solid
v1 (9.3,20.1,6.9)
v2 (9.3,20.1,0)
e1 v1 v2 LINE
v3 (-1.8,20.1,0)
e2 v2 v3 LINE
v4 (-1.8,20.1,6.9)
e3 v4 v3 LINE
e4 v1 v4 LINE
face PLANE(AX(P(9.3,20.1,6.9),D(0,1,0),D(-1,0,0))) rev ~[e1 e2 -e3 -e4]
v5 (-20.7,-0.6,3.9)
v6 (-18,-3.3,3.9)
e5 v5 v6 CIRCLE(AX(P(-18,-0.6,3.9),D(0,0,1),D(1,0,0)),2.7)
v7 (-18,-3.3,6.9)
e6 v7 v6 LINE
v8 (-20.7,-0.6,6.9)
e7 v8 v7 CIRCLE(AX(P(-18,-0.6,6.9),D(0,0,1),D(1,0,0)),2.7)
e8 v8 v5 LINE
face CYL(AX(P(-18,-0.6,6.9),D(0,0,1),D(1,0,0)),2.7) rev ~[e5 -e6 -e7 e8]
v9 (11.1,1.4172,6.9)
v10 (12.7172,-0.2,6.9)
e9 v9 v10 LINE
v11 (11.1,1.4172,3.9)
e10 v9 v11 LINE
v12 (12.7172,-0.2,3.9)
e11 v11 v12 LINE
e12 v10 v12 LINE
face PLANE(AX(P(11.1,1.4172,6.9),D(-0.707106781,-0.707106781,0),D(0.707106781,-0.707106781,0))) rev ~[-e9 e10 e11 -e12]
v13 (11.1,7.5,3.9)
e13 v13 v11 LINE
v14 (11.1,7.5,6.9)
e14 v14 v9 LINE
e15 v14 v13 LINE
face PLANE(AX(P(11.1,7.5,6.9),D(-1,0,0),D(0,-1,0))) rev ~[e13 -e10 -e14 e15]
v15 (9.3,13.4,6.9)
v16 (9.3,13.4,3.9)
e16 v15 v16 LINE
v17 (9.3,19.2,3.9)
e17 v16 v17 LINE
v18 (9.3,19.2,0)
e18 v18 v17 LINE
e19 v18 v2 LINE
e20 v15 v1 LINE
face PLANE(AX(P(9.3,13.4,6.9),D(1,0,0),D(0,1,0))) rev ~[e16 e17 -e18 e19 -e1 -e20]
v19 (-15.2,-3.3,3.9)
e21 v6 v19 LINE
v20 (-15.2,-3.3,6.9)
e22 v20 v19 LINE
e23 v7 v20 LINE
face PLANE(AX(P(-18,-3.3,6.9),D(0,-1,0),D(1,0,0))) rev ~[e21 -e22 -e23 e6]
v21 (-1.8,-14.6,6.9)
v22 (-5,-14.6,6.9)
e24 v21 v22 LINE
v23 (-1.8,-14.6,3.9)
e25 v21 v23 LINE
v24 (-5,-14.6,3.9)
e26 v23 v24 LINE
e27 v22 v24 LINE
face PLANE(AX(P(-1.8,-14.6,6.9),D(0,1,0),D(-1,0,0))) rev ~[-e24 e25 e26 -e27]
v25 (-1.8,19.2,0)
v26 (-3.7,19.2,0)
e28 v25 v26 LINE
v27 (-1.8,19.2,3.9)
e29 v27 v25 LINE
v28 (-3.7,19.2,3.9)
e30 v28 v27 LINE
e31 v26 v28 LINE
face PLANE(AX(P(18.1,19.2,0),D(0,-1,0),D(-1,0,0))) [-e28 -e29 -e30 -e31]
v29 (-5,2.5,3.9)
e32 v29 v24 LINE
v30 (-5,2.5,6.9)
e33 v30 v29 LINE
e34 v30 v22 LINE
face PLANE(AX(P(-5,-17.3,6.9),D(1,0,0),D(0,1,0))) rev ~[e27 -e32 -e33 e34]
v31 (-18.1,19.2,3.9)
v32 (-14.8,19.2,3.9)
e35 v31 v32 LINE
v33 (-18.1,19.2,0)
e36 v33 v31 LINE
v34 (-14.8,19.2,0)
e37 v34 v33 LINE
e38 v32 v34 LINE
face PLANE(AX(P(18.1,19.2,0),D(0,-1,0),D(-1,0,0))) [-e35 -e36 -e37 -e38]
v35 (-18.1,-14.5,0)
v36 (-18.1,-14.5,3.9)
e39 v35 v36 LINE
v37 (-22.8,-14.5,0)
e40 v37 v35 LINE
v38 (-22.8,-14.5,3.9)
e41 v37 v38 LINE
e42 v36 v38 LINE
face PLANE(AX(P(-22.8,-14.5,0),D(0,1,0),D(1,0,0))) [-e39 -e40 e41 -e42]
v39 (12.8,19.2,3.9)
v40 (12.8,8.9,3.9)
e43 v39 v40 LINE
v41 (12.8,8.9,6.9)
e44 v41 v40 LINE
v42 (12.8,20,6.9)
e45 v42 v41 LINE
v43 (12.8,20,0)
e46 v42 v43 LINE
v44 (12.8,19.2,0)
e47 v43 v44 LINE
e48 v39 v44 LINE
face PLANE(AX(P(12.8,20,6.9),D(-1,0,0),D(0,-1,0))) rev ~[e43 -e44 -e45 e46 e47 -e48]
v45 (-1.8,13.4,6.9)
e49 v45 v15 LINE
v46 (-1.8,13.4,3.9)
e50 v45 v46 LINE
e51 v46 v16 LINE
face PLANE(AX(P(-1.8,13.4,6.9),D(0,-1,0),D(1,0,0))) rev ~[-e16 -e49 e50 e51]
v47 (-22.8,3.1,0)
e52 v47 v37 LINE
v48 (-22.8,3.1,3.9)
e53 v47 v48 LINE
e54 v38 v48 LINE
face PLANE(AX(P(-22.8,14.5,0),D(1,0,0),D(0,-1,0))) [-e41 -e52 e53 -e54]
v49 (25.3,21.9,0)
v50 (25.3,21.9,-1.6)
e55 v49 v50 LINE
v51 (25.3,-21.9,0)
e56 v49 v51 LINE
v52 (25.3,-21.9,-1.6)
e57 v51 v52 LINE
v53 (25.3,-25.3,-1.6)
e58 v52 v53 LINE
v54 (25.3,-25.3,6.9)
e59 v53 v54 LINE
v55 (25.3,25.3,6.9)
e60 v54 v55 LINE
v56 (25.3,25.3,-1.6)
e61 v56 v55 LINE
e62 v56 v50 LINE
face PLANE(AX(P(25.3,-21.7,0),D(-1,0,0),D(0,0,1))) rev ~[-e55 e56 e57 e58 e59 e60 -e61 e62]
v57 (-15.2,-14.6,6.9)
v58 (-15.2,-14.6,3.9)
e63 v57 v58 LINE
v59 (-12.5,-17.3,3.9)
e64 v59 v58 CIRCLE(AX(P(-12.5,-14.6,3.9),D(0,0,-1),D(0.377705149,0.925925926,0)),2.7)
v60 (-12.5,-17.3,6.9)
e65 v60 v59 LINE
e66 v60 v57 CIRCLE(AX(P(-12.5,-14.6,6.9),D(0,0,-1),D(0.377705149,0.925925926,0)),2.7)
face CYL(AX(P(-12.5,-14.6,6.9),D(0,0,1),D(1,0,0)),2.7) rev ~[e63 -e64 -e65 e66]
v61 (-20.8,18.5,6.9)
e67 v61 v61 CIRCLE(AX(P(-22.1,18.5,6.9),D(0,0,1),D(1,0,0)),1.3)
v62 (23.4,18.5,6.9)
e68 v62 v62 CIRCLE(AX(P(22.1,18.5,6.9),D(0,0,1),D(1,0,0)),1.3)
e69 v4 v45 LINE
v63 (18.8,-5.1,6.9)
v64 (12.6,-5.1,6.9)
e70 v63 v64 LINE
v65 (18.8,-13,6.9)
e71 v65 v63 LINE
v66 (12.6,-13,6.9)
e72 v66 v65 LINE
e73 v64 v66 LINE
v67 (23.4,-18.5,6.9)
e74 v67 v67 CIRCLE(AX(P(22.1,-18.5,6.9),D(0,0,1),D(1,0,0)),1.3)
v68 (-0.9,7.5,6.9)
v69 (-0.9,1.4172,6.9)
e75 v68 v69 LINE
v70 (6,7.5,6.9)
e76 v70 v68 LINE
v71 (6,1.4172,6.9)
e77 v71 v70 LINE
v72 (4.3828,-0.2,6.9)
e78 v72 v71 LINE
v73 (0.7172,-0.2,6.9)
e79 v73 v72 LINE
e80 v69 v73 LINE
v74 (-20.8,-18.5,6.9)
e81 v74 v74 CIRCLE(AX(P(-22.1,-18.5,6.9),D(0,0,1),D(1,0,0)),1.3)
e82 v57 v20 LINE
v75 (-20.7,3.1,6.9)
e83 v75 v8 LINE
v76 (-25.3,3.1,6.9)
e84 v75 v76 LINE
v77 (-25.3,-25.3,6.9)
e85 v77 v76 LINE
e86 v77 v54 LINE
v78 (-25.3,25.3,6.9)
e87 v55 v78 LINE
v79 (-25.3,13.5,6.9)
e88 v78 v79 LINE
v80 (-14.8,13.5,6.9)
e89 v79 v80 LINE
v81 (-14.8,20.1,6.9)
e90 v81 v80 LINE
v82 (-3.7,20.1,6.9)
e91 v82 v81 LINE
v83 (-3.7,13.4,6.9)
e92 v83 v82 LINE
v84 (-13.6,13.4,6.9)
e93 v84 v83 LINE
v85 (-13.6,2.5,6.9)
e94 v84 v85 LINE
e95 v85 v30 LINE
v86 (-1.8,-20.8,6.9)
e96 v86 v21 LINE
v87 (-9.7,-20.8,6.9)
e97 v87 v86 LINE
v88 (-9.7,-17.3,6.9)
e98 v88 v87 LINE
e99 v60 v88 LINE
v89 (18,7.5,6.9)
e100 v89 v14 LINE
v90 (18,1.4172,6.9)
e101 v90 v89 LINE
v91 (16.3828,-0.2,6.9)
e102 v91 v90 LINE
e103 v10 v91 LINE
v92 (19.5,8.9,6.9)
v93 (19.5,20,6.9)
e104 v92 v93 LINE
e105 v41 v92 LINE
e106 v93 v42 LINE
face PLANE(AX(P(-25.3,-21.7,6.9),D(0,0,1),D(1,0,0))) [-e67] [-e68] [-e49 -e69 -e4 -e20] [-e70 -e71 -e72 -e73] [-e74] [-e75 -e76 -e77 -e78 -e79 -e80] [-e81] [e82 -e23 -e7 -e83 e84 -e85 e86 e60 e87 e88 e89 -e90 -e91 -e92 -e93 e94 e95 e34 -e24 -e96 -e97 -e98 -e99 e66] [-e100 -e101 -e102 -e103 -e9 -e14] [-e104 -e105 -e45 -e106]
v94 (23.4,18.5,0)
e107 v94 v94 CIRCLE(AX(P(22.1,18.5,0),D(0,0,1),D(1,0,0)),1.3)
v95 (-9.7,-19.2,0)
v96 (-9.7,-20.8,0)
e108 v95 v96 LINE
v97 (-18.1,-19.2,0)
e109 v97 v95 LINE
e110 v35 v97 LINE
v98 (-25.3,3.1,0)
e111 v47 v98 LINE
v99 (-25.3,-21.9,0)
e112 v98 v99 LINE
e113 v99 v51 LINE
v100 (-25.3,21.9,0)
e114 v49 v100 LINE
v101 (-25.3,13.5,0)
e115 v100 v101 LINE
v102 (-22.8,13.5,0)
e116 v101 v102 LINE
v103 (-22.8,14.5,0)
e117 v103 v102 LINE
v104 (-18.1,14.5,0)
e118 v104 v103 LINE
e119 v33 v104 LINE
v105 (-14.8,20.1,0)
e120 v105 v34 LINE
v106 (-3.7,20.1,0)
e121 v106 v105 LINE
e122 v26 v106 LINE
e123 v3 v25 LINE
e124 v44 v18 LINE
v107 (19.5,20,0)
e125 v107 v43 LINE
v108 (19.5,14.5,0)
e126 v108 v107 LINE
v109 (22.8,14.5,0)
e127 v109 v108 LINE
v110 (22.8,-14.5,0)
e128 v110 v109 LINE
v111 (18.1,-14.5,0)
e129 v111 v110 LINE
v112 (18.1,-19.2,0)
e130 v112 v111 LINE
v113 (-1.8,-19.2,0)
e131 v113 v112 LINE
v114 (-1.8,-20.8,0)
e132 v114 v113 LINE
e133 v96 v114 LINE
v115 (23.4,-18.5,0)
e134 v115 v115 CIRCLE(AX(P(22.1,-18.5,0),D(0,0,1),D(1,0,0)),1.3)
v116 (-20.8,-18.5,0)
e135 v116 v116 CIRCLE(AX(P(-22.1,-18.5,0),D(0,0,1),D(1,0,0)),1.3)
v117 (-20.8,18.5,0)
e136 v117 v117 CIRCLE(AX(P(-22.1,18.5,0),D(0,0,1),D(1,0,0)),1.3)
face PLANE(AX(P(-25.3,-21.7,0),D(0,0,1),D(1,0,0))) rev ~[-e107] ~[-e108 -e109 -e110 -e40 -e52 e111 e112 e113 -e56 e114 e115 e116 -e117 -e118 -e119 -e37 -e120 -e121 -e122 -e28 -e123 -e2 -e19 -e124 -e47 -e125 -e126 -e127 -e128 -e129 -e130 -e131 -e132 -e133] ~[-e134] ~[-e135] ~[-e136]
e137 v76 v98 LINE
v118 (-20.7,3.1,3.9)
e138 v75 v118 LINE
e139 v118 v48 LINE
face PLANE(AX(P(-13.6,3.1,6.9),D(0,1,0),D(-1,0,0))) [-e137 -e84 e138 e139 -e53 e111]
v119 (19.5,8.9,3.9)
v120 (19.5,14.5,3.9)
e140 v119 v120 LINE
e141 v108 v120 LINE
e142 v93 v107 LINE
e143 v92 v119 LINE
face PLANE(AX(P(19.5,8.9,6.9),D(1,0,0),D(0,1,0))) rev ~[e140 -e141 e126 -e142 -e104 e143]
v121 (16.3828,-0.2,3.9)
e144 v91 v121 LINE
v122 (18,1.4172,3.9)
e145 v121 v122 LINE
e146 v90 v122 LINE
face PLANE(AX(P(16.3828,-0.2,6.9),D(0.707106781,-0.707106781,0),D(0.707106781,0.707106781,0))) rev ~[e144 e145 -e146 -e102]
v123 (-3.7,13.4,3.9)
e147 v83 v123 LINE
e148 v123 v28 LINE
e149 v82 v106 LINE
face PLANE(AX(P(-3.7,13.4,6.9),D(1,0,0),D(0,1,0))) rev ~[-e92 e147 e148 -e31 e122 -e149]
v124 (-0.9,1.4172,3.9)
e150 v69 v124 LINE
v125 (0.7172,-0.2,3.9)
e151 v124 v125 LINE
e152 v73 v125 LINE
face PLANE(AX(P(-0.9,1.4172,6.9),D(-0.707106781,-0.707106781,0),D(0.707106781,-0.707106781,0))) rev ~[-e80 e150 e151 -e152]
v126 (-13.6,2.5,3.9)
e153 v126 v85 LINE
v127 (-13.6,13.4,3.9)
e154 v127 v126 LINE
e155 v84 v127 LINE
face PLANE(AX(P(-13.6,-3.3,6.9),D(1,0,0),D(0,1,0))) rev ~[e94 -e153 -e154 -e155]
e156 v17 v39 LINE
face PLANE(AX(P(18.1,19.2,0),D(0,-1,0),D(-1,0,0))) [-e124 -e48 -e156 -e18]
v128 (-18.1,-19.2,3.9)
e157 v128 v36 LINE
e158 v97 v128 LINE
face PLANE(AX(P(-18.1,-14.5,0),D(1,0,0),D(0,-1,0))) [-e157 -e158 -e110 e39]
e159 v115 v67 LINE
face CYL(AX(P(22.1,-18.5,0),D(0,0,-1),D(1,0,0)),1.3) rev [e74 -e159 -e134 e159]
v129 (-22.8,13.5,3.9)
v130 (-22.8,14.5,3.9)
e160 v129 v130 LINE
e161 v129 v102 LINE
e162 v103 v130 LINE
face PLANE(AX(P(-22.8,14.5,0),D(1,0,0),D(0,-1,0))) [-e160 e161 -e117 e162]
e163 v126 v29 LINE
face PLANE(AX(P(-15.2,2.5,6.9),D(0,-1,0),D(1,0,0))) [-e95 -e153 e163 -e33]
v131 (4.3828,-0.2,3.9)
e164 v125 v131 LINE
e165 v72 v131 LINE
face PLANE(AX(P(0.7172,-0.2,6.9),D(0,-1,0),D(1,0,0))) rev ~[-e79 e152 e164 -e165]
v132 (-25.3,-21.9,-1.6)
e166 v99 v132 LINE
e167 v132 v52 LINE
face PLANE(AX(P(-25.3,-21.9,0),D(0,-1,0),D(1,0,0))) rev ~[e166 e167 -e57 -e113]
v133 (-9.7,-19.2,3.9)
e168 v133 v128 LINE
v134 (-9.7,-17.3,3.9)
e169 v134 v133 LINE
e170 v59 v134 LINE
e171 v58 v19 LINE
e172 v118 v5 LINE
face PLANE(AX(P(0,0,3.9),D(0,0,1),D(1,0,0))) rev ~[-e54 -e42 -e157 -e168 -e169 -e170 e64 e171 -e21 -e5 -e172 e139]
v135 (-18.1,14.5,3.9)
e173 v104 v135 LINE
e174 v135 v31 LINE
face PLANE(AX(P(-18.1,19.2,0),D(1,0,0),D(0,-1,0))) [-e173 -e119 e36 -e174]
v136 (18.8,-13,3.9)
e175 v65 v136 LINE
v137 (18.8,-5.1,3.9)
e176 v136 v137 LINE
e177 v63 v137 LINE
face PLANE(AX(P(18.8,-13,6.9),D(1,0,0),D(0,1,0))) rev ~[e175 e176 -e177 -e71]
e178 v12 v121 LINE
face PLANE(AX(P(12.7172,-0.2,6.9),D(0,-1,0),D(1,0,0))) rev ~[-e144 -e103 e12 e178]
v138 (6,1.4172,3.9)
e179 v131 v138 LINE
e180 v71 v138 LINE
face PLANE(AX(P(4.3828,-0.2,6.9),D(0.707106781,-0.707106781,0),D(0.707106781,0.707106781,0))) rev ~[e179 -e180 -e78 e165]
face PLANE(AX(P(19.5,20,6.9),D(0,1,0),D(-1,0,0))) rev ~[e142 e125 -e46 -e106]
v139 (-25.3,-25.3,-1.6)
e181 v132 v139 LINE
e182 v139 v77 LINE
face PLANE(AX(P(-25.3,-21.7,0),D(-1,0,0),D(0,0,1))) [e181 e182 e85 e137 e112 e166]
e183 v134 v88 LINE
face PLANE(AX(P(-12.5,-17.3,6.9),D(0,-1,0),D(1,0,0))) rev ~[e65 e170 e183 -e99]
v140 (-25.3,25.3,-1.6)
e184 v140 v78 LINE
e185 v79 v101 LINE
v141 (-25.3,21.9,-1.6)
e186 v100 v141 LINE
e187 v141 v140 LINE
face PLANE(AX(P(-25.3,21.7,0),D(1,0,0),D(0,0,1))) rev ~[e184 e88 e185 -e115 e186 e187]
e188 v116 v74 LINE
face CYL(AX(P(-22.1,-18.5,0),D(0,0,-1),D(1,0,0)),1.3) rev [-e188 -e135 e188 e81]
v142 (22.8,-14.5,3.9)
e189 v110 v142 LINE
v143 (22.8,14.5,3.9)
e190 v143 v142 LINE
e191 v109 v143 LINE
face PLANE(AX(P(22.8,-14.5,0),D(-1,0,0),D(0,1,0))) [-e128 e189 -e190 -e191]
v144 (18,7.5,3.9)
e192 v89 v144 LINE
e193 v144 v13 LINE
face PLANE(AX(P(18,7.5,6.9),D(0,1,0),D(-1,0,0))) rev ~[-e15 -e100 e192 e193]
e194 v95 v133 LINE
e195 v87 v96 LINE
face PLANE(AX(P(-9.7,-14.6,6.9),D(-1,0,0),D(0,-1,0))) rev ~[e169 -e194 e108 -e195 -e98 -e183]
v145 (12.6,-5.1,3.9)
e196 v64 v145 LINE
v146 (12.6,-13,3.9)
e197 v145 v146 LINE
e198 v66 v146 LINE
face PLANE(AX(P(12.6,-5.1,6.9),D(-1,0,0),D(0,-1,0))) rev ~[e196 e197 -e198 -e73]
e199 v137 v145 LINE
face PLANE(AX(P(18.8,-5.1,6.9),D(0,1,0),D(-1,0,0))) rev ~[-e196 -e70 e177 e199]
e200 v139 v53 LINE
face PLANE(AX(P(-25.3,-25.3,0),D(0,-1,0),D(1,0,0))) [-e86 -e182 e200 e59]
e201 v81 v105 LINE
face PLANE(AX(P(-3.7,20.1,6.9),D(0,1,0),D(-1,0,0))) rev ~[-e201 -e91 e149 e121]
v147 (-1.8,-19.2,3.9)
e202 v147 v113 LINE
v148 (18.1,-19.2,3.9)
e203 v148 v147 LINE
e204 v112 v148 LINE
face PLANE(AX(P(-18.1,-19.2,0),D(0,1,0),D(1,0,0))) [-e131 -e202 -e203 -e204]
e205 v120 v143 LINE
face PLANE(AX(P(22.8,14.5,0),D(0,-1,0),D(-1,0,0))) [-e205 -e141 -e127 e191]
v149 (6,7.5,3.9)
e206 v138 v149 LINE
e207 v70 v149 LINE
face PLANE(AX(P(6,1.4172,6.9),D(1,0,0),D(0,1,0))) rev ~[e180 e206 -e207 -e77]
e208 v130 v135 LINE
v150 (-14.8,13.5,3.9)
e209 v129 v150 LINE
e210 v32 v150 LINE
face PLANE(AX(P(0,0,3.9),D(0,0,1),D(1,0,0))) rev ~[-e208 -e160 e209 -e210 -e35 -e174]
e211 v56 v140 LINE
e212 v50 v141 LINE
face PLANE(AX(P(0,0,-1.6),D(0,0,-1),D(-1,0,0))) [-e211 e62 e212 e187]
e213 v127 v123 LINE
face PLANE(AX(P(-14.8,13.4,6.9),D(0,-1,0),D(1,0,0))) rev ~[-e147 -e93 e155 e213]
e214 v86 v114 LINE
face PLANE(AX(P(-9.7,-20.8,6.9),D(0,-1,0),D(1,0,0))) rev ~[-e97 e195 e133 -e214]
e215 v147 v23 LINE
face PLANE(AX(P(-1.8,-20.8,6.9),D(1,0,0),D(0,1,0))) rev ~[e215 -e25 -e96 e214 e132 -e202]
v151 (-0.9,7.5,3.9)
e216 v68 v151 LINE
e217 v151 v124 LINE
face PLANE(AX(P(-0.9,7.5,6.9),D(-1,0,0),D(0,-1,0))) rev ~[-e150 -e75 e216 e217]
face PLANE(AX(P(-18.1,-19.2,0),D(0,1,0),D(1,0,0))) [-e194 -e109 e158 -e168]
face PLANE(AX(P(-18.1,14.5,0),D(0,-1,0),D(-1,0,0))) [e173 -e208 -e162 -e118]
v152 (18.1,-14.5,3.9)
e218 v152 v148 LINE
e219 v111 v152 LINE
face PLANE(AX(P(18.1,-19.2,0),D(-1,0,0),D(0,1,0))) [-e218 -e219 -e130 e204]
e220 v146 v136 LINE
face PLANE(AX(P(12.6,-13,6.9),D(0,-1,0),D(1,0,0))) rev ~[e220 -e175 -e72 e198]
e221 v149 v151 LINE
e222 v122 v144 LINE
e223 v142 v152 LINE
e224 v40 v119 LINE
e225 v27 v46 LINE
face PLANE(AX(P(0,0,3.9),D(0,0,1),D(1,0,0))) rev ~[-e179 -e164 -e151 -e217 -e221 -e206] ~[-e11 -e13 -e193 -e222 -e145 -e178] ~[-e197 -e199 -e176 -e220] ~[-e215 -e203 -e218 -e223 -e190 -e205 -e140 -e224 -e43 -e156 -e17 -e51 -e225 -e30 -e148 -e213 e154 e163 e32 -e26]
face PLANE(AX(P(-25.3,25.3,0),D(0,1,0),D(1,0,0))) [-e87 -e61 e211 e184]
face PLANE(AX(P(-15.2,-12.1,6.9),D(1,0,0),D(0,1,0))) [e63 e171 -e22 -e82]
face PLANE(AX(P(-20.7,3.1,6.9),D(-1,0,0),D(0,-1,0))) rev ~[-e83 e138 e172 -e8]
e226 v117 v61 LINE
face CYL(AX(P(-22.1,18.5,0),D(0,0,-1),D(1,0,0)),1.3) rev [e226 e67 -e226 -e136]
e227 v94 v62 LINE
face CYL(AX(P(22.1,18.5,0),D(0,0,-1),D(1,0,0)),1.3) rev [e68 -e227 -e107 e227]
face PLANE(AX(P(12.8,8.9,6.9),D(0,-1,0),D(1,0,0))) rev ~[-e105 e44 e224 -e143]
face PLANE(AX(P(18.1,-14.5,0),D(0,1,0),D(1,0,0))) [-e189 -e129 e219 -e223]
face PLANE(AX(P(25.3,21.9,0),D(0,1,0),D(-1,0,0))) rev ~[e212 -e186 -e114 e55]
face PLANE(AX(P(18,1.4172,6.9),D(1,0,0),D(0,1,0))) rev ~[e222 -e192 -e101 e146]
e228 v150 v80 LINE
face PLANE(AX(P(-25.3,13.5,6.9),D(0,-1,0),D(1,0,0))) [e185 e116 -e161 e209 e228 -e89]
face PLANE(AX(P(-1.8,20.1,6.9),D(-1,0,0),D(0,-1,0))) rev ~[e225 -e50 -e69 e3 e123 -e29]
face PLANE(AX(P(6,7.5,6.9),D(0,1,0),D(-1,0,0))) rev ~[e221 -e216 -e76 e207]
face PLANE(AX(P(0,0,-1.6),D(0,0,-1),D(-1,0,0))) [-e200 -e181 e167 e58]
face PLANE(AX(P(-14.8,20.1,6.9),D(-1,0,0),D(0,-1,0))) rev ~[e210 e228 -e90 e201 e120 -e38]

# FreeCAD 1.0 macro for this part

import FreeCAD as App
import Part
import Sketcher
from FreeCAD import Vector


def add_polygon(sketch, points):
    """Adds a closed chain of lines whose ends are joined by coincident constraints."""
    first, n = sketch.GeometryCount, len(points)
    for a, b in zip(points, points[1:] + points[:1]):
        sketch.addGeometry(Part.LineSegment(App.Vector(*a, 0), App.Vector(*b, 0)), False)
    for i in range(n):
        sketch.addConstraint(Sketcher.Constraint("Coincident", first + i, 2, first + (i + 1) % n, 1))

doc = App.newDocument("Part")
body = doc.addObject("PartDesign::Body", "Body")

sketch1 = body.newObject("Sketcher::SketchObject", "Sketch")
sketch1.AttachmentSupport = (doc.getObject("XY_Plane"), [""])
sketch1.MapMode = "FlatFace"
add_polygon(sketch1, [(25.3, 21.7), (-25.3, 21.7), (-25.3, -21.7), (25.3, -21.7)])
sketch1.addGeometry(Part.Circle(Vector(-22.1, -18.5, 0), Vector(0, 0, 1), 1.3), False)
sketch1.addGeometry(Part.Circle(Vector(22.1, -18.5, 0), Vector(0, 0, 1), 1.3), False)
sketch1.addGeometry(Part.Circle(Vector(-22.1, 18.5, 0), Vector(0, 0, 1), 1.3), False)
add_polygon(sketch1, [(-18.1, 14.5), (-18.1, 19.2), (18.1, 19.2), (18.1, 14.5), (22.8, 14.5), (22.8, -14.5), (18.1, -14.5), (18.1, -19.2), (-18.1, -19.2), (-18.1, -14.5), (-22.8, -14.5), (-22.8, 14.5)])
sketch1.addGeometry(Part.Circle(Vector(22.1, 18.5, 0), Vector(0, 0, 1), 1.3), False)
sketch1.addConstraint(Sketcher.Constraint("Horizontal", 0))
sketch1.addConstraint(Sketcher.Constraint("Vertical", 1))
sketch1.addConstraint(Sketcher.Constraint("Horizontal", 2))
sketch1.addConstraint(Sketcher.Constraint("Vertical", 3))
sketch1.addConstraint(Sketcher.Constraint("Vertical", 7))
sketch1.addConstraint(Sketcher.Constraint("Horizontal", 8))
sketch1.addConstraint(Sketcher.Constraint("Vertical", 9))
sketch1.addConstraint(Sketcher.Constraint("Horizontal", 10))
sketch1.addConstraint(Sketcher.Constraint("Vertical", 11))
sketch1.addConstraint(Sketcher.Constraint("Horizontal", 12))
sketch1.addConstraint(Sketcher.Constraint("Vertical", 13))
sketch1.addConstraint(Sketcher.Constraint("Horizontal", 14))
sketch1.addConstraint(Sketcher.Constraint("Vertical", 15))
sketch1.addConstraint(Sketcher.Constraint("Horizontal", 16))
sketch1.addConstraint(Sketcher.Constraint("Vertical", 17))
sketch1.addConstraint(Sketcher.Constraint("Horizontal", 18))
sketch1.addConstraint(Sketcher.Constraint("Equal", 4, 5))
sketch1.addConstraint(Sketcher.Constraint("Equal", 5, 6))
sketch1.addConstraint(Sketcher.Constraint("Equal", 6, 19))
sketch1.addConstraint(Sketcher.Constraint("Symmetric", 5, 3, 6, 3, -1, 1))
sketch1.addConstraint(Sketcher.Constraint("Symmetric", 4, 3, 19, 3, -1, 1))
sketch1.addConstraint(Sketcher.Constraint("Symmetric", 0, 2, 2, 2, -1, 1))
sketch1.addConstraint(Sketcher.Constraint("Symmetric", 7, 2, 13, 2, -1, 1))
sketch1.addConstraint(Sketcher.Constraint("Symmetric", 9, 2, 15, 2, -1, 1))
sketch1.addConstraint(Sketcher.Constraint("Symmetric", 11, 2, 17, 2, -1, 1))
sketch1.addConstraint(Sketcher.Constraint("Symmetric", 4, 3, 5, 3, -2))
sketch1.addConstraint(Sketcher.Constraint("Symmetric", 12, 2, 15, 2, -2))
sketch1.addConstraint(Sketcher.Constraint("Equal", 18, 7))
sketch1.addConstraint(Sketcher.Constraint("Diameter", 4, 2.6))
sketch1.addConstraint(Sketcher.Constraint("DistanceX", 0, 2, 0, 1, 50.6))
sketch1.addConstraint(Sketcher.Constraint("DistanceY", 1, 2, 1, 1, 43.4))
sketch1.addConstraint(Sketcher.Constraint("DistanceY", 4, 3, 6, 3, 37.0))
sketch1.addConstraint(Sketcher.Constraint("DistanceX", 6, 3, 7, 2, 4.0))
sketch1.addConstraint(Sketcher.Constraint("DistanceY", 9, 2, 19, 3, 4.0))
sketch1.addConstraint(Sketcher.Constraint("DistanceX", 4, 3, -1, 1, 22.1))
sketch1.addConstraint(Sketcher.Constraint("DistanceY", 7, 2, 0, 2, 2.5))
pad1 = body.newObject("PartDesign::Pad", "Pad")
pad1.Profile = sketch1
pad1.Length = 6.9

sketch2 = body.newObject("Sketcher::SketchObject", "Sketch001")
sketch2.AttachmentSupport = (doc.getObject("XY_Plane"), [""])
sketch2.MapMode = "FlatFace"
sketch2.AttachmentOffset = App.Placement(Vector(0, 0, 6.9), App.Rotation())
add_polygon(sketch2, [(-18.1, 19.2), (-18.1, 14.5), (-22.8, 14.5), (-22.8, -14.5), (-18.1, -14.5), (-18.1, -19.2), (18.1, -19.2), (18.1, -14.5), (22.8, -14.5), (22.8, 14.5), (18.1, 14.5), (18.1, 19.2)])
sketch2.addConstraint(Sketcher.Constraint("Vertical", 0))
sketch2.addConstraint(Sketcher.Constraint("Horizontal", 1))
sketch2.addConstraint(Sketcher.Constraint("Vertical", 2))
sketch2.addConstraint(Sketcher.Constraint("Horizontal", 3))
sketch2.addConstraint(Sketcher.Constraint("Vertical", 4))
sketch2.addConstraint(Sketcher.Constraint("Horizontal", 5))
sketch2.addConstraint(Sketcher.Constraint("Vertical", 6))
sketch2.addConstraint(Sketcher.Constraint("Horizontal", 7))
sketch2.addConstraint(Sketcher.Constraint("Vertical", 8))
sketch2.addConstraint(Sketcher.Constraint("Horizontal", 9))
sketch2.addConstraint(Sketcher.Constraint("Vertical", 10))
sketch2.addConstraint(Sketcher.Constraint("Horizontal", 11))
sketch2.addConstraint(Sketcher.Constraint("Symmetric", 0, 2, 6, 2, -1, 1))
sketch2.addConstraint(Sketcher.Constraint("Symmetric", 2, 2, 8, 2, -1, 1))
sketch2.addConstraint(Sketcher.Constraint("Symmetric", 4, 2, 10, 2, -1, 1))
sketch2.addConstraint(Sketcher.Constraint("Symmetric", 3, 2, 6, 2, -2))
sketch2.addConstraint(Sketcher.Constraint("Equal", 9, 0))
sketch2.addConstraint(Sketcher.Constraint("DistanceY", 2, 2, 2, 1, 29.0))
sketch2.addConstraint(Sketcher.Constraint("DistanceX", 1, 2, 1, 1, 4.7))
sketch2.addConstraint(Sketcher.Constraint("DistanceX", 5, 1, 5, 2, 36.2))
pad2 = body.newObject("PartDesign::Pad", "Pad001")
pad2.Profile = sketch2
pad2.Length = 3
pad2.Reversed = True

sketch3 = body.newObject("Sketcher::SketchObject", "Sketch002")
sketch3.AttachmentSupport = (doc.getObject("XY_Plane"), [""])
sketch3.MapMode = "FlatFace"
sketch3.AttachmentOffset = App.Placement(Vector(0, 0, 6.9), App.Rotation())
add_polygon(sketch3, [(-15, 20), (-15, 13), (-4, 13), (-4, 20)])
add_polygon(sketch3, [(-2, 20), (-2, 13), (9, 13), (9, 20)])
add_polygon(sketch3, [(13, 20), (13, 9), (20, 9), (20, 20)])
sketch3.addConstraint(Sketcher.Constraint("Vertical", 0))
sketch3.addConstraint(Sketcher.Constraint("Horizontal", 1))
sketch3.addConstraint(Sketcher.Constraint("Vertical", 2))
sketch3.addConstraint(Sketcher.Constraint("Horizontal", 3))
sketch3.addConstraint(Sketcher.Constraint("Vertical", 4))
sketch3.addConstraint(Sketcher.Constraint("Horizontal", 5))
sketch3.addConstraint(Sketcher.Constraint("Vertical", 6))
sketch3.addConstraint(Sketcher.Constraint("Horizontal", 7))
sketch3.addConstraint(Sketcher.Constraint("Vertical", 8))
sketch3.addConstraint(Sketcher.Constraint("Horizontal", 9))
sketch3.addConstraint(Sketcher.Constraint("Vertical", 10))
sketch3.addConstraint(Sketcher.Constraint("Horizontal", 11))
sketch3.addConstraint(Sketcher.Constraint("Horizontal", 1, 2, 4, 2))
sketch3.addConstraint(Sketcher.Constraint("Horizontal", 3, 2, 6, 2))
sketch3.addConstraint(Sketcher.Constraint("Equal", 3, 5))
sketch3.addConstraint(Sketcher.Constraint("Equal", 11, 0))
sketch3.addConstraint(Sketcher.Constraint("Equal", 7, 8))
sketch3.addConstraint(Sketcher.Constraint("DistanceX", 4, 2, -1, 1, 1.8))
sketch3.addConstraint(Sketcher.Constraint("DistanceX", 1, 1, 1, 2, 11.1))
sketch3.addConstraint(Sketcher.Constraint("DistanceX", 9, 1, 9, 2, 6.7))
sketch3.addConstraint(Sketcher.Constraint("DistanceY", -1, 1, 10, 2, 20.0))
sketch3.addConstraint(Sketcher.Constraint("DistanceX", 0, 2, 4, 2, 13.0))
sketch3.addConstraint(Sketcher.Constraint("DistanceY", -1, 1, 0, 2, 13.4))
sketch3.addConstraint(Sketcher.Constraint("DistanceX", -1, 1, 8, 2, 12.8))
pocket1 = body.newObject("PartDesign::Pocket", "Pocket")
pocket1.Profile = sketch3
pocket1.Type = "ThroughAll"
pocket1.Midplane = True

sketch4 = body.newObject("Sketcher::SketchObject", "Sketch003")
sketch4.AttachmentSupport = (doc.getObject("XY_Plane"), [""])
sketch4.MapMode = "FlatFace"
sketch4.AttachmentOffset = App.Placement(Vector(0, 0, 6.9), App.Rotation())
add_polygon(sketch4, [(-14, 14), (-25, 14), (-25, 3), (-14, 3)])
sketch4.addConstraint(Sketcher.Constraint("Horizontal", 0))
sketch4.addConstraint(Sketcher.Constraint("Vertical", 1))
sketch4.addConstraint(Sketcher.Constraint("Horizontal", 2))
sketch4.addConstraint(Sketcher.Constraint("Vertical", 3))
sketch4.addConstraint(Sketcher.Constraint("DistanceX", 0, 2, 0, 1, 11.7))
sketch4.addConstraint(Sketcher.Constraint("DistanceY", 1, 2, 1, 1, 10.4))
sketch4.addConstraint(Sketcher.Constraint("DistanceX", 0, 2, -1, 1, 25.3))
sketch4.addConstraint(Sketcher.Constraint("DistanceY", -1, 1, 0, 2, 13.5))
pocket2 = body.newObject("PartDesign::Pocket", "Pocket001")
pocket2.Profile = sketch4
pocket2.Type = "ThroughAll"

sketch5 = body.newObject("Sketcher::SketchObject", "Sketch004")
sketch5.AttachmentSupport = (doc.getObject("XY_Plane"), [""])
sketch5.MapMode = "FlatFace"
sketch5.AttachmentOffset = App.Placement(Vector(0, 0, 6.9), App.Rotation())
add_polygon(sketch5, [(-5, 2), (-15, 2), (-15, -12), (-5, -12)])
sketch5.addConstraint(Sketcher.Constraint("Horizontal", 0))
sketch5.addConstraint(Sketcher.Constraint("Vertical", 1))
sketch5.addConstraint(Sketcher.Constraint("Horizontal", 2))
sketch5.addConstraint(Sketcher.Constraint("Vertical", 3))
sketch5.addConstraint(Sketcher.Constraint("DistanceX", 0, 2, 0, 1, 10.2))
sketch5.addConstraint(Sketcher.Constraint("DistanceY", 1, 2, 1, 1, 14.6))
sketch5.addConstraint(Sketcher.Constraint("DistanceX", 2, 2, -1, 1, 5.0))
sketch5.addConstraint(Sketcher.Constraint("DistanceY", -1, 1, 0, 2, 2.5))
pocket3 = body.newObject("PartDesign::Pocket", "Pocket002")
pocket3.Profile = sketch5
pocket3.Type = "ThroughAll"

sketch6 = body.newObject("Sketcher::SketchObject", "Sketch005")
sketch6.AttachmentSupport = (doc.getObject("XY_Plane"), [""])
sketch6.MapMode = "FlatFace"
sketch6.AttachmentOffset = App.Placement(Vector(0, 0, 6.9), App.Rotation())
add_polygon(sketch6, [(13, -5), (13, -13), (19, -13), (19, -5)])
add_polygon(sketch6, [(-10, -21), (-2, -21), (-2, -15), (-10, -15)])
sketch6.addConstraint(Sketcher.Constraint("Vertical", 0))
sketch6.addConstraint(Sketcher.Constraint("Horizontal", 1))
sketch6.addConstraint(Sketcher.Constraint("Vertical", 2))
sketch6.addConstraint(Sketcher.Constraint("Horizontal", 3))
sketch6.addConstraint(Sketcher.Constraint("Horizontal", 4))
sketch6.addConstraint(Sketcher.Constraint("Vertical", 5))
sketch6.addConstraint(Sketcher.Constraint("Horizontal", 6))
sketch6.addConstraint(Sketcher.Constraint("Vertical", 7))
sketch6.addConstraint(Sketcher.Constraint("Equal", 6, 0))
sketch6.addConstraint(Sketcher.Constraint("Equal", 3, 5))
sketch6.addConstraint(Sketcher.Constraint("DistanceX", 1, 1, 1, 2, 6.2))
sketch6.addConstraint(Sketcher.Constraint("DistanceX", 4, 1, 4, 2, 7.9))
sketch6.addConstraint(Sketcher.Constraint("DistanceY", 0, 2, -1, 1, 13.0))
sketch6.addConstraint(Sketcher.Constraint("DistanceX", -1, 1, 0, 2, 12.6))
sketch6.addConstraint(Sketcher.Constraint("DistanceX", 4, 2, -1, 1, 1.8))
sketch6.addConstraint(Sketcher.Constraint("DistanceY", 4, 2, -1, 1, 20.8))
pocket4 = body.newObject("PartDesign::Pocket", "Pocket003")
pocket4.Profile = sketch6
pocket4.Type = "ThroughAll"

sketch7 = body.newObject("Sketcher::SketchObject", "Sketch006")
sketch7.AttachmentSupport = (doc.getObject("XY_Plane"), [""])
sketch7.MapMode = "FlatFace"
sketch7.AttachmentOffset = App.Placement(Vector(0, 0, 6.9), App.Rotation())
sketch7.addGeometry(Part.Circle(Vector(-18, -0.6, 0), Vector(0, 0, 1), 2.7), False)
sketch7.addGeometry(Part.Circle(Vector(-12.5, -14.6, 0), Vector(0, 0, 1), 2.7), False)
sketch7.addConstraint(Sketcher.Constraint("Equal", 0, 1))
sketch7.addConstraint(Sketcher.Constraint("Diameter", 0, 5.4))
sketch7.addConstraint(Sketcher.Constraint("DistanceX", 0, 3, -1, 1, 18.0))
sketch7.addConstraint(Sketcher.Constraint("DistanceY", 1, 3, 0, 3, 14.0))
sketch7.addConstraint(Sketcher.Constraint("DistanceY", 0, 3, -1, 1, 0.6))
sketch7.addConstraint(Sketcher.Constraint("DistanceX", 1, 3, -1, 1, 12.5))
pocket5 = body.newObject("PartDesign::Pocket", "Pocket004")
pocket5.Profile = sketch7
pocket5.Type = "ThroughAll"

sketch8 = body.newObject("Sketcher::SketchObject", "Sketch007")
sketch8.AttachmentSupport = (doc.getObject("XY_Plane"), [""])
sketch8.MapMode = "FlatFace"
sketch8.AttachmentOffset = App.Placement(Vector(0, 0, 6.9), App.Rotation())
add_polygon(sketch8, [(6, 1.4), (6, 7.5), (-0.9, 7.5), (-0.9, 1.4), (0.7, -0.2), (4.4, -0.2)])
add_polygon(sketch8, [(18, 1.4), (18, 7.5), (11.1, 7.5), (11.1, 1.4), (12.7, -0.2), (16.4, -0.2)])
sketch8.addConstraint(Sketcher.Constraint("Vertical", 0))
sketch8.addConstraint(Sketcher.Constraint("Horizontal", 1))
sketch8.addConstraint(Sketcher.Constraint("Vertical", 2))
sketch8.addConstraint(Sketcher.Constraint("Horizontal", 4))
sketch8.addConstraint(Sketcher.Constraint("Vertical", 6))
sketch8.addConstraint(Sketcher.Constraint("Horizontal", 7))
sketch8.addConstraint(Sketcher.Constraint("Vertical", 8))
sketch8.addConstraint(Sketcher.Constraint("Horizontal", 10))
sketch8.addConstraint(Sketcher.Constraint("Perpendicular", 3, 5))
sketch8.addConstraint(Sketcher.Constraint("Perpendicular", 5, 9))
sketch8.addConstraint(Sketcher.Constraint("Perpendicular", 9, 11))
sketch8.addConstraint(Sketcher.Constraint("Horizontal", 2, 2, 5, 2))
sketch8.addConstraint(Sketcher.Constraint("Horizontal", 1, 2, 6, 2))
sketch8.addConstraint(Sketcher.Constraint("Horizontal", 5, 2, 8, 2))
sketch8.addConstraint(Sketcher.Constraint("Horizontal", 4, 2, 9, 2))
sketch8.addConstraint(Sketcher.Constraint("Horizontal", 8, 2, 11, 2))
sketch8.addConstraint(Sketcher.Constraint("Equal", 1, 7))
sketch8.addConstraint(Sketcher.Constraint("Equal", 3, 5))
sketch8.addConstraint(Sketcher.Constraint("DistanceY", 3, 2, -1, 1, 0.2))
sketch8.addConstraint(Sketcher.Constraint("DistanceX", 1, 2, 1, 1, 6.9))
sketch8.addConstraint(Sketcher.Constraint("DistanceX", -1, 1, 0, 2, 6.0))
sketch8.addConstraint(Sketcher.Constraint("DistanceX", -1, 1, 6, 2, 18.0))
sketch8.addConstraint(Sketcher.Constraint("DistanceY", -1, 1, 0, 2, 7.5))
sketch8.addConstraint(Sketcher.Constraint("Distance", 3, 2.287))
pocket6 = body.newObject("PartDesign::Pocket", "Pocket005")
pocket6.Profile = sketch8
pocket6.Type = "ThroughAll"

sketch9 = body.newObject("Sketcher::SketchObject", "Sketch008")
sketch9.AttachmentSupport = (doc.getObject("XY_Plane"), [""])
sketch9.MapMode = "FlatFace"
sketch9.AttachmentOffset = App.Placement(Vector(0, 0, 6.9), App.Rotation())
add_polygon(sketch9, [(-5, -17.3), (-5, -8.3), (-15.2, -8.3), (-15.2, -14.6), (-12.5, -14.6), (-12.5, -17.3)])
add_polygon(sketch9, [(-13.6, 3.1), (-20.7, 3.1), (-20.7, -0.6), (-18, -0.6), (-18, -3.3), (-13.6, -3.3)])
sketch9.addConstraint(Sketcher.Constraint("Vertical", 0))
sketch9.addConstraint(Sketcher.Constraint("Horizontal", 1))
sketch9.addConstraint(Sketcher.Constraint("Vertical", 2))
sketch9.addConstraint(Sketcher.Constraint("Horizontal", 3))
sketch9.addConstraint(Sketcher.Constraint("Vertical", 4))
sketch9.addConstraint(Sketcher.Constraint("Horizontal", 5))
sketch9.addConstraint(Sketcher.Constraint("Horizontal", 6))
sketch9.addConstraint(Sketcher.Constraint("Vertical", 7))
sketch9.addConstraint(Sketcher.Constraint("Horizontal", 8))
sketch9.addConstraint(Sketcher.Constraint("Vertical", 9))
sketch9.addConstraint(Sketcher.Constraint("Horizontal", 10))
sketch9.addConstraint(Sketcher.Constraint("Vertical", 11))
sketch9.addConstraint(Sketcher.Constraint("Equal", 3, 8))
sketch9.addConstraint(Sketcher.Constraint("Equal", 8, 4))
sketch9.addConstraint(Sketcher.Constraint("Equal", 4, 9))
sketch9.addConstraint(Sketcher.Constraint("DistanceX", 1, 2, 1, 1, 10.2))
sketch9.addConstraint(Sketcher.Constraint("DistanceX", 3, 1, 3, 2, 2.7))
sketch9.addConstraint(Sketcher.Constraint("DistanceX", 6, 2, 6, 1, 7.1))
sketch9.addConstraint(Sketcher.Constraint("DistanceY", 7, 2, 7, 1, 3.7))
sketch9.addConstraint(Sketcher.Constraint("DistanceX", 0, 2, -1, 1, 5.0))
sketch9.addConstraint(Sketcher.Constraint("DistanceX", 8, 2, -1, 1, 18.0))
sketch9.addConstraint(Sketcher.Constraint("DistanceY", 2, 2, 7, 2, 14.0))
sketch9.addConstraint(Sketcher.Constraint("DistanceY", 2, 2, -1, 1, 14.6))
sketch9.addConstraint(Sketcher.Constraint("DistanceY", 0, 1, 0, 2, 8.958))
pocket7 = body.newObject("PartDesign::Pocket", "Pocket006")
pocket7.Profile = sketch9
pocket7.Type = "ThroughAll"

sketch10 = body.newObject("Sketcher::SketchObject", "Sketch009")
sketch10.AttachmentSupport = (doc.getObject("XZ_Plane"), [""])
sketch10.MapMode = "FlatFace"
sketch10.AttachmentOffset = App.Placement(Vector(0, 0, -21.7), App.Rotation())
add_polygon(sketch10, [(-25, 7), (25, 7), (25, 0), (-25, 0)])
sketch10.addConstraint(Sketcher.Constraint("Horizontal", 0))
sketch10.addConstraint(Sketcher.Constraint("Vertical", 1))
sketch10.addConstraint(Sketcher.Constraint("Horizontal", 2))
sketch10.addConstraint(Sketcher.Constraint("Vertical", 3))
sketch10.addConstraint(Sketcher.Constraint("Symmetric", 1, 2, 2, 2, -1, 1))
sketch10.addConstraint(Sketcher.Constraint("DistanceX", 0, 1, 0, 2, 50.6))
sketch10.addConstraint(Sketcher.Constraint("DistanceY", 1, 2, 1, 1, 6.9))
pad3 = body.newObject("PartDesign::Pad", "Pad002")
pad3.Profile = sketch10
pad3.Length = 3.6
pad3.Reversed = True

sketch11 = body.newObject("Sketcher::SketchObject", "Sketch010")
sketch11.AttachmentSupport = (doc.getObject("XZ_Plane"), [""])
sketch11.MapMode = "FlatFace"
sketch11.AttachmentOffset = App.Placement(Vector(0, 0, 21.7), App.Rotation())
add_polygon(sketch11, [(-25, 7), (-25, 0), (25, 0), (25, 7)])
sketch11.addConstraint(Sketcher.Constraint("Vertical", 0))
sketch11.addConstraint(Sketcher.Constraint("Horizontal", 1))
sketch11.addConstraint(Sketcher.Constraint("Vertical", 2))
sketch11.addConstraint(Sketcher.Constraint("Horizontal", 3))
sketch11.addConstraint(Sketcher.Constraint("Symmetric", 0, 2, 1, 2, -1, 1))
sketch11.addConstraint(Sketcher.Constraint("DistanceX", 1, 1, 1, 2, 50.6))
sketch11.addConstraint(Sketcher.Constraint("DistanceY", 0, 2, 0, 1, 6.9))
pad4 = body.newObject("PartDesign::Pad", "Pad003")
pad4.Profile = sketch11
pad4.Length = 3.6

sketch12 = body.newObject("Sketcher::SketchObject", "Sketch011")
sketch12.AttachmentSupport = (doc.getObject("XY_Plane"), [""])
sketch12.MapMode = "FlatFace"
add_polygon(sketch12, [(-25.3, 25.3), (25.3, 25.3), (25.3, 21.9), (-25.3, 21.9)])
add_polygon(sketch12, [(25.3, -25.3), (-25.3, -25.3), (-25.3, -21.9), (25.3, -21.9)])
sketch12.addConstraint(Sketcher.Constraint("Horizontal", 0))
sketch12.addConstraint(Sketcher.Constraint("Vertical", 1))
sketch12.addConstraint(Sketcher.Constraint("Horizontal", 2))
sketch12.addConstraint(Sketcher.Constraint("Vertical", 3))
sketch12.addConstraint(Sketcher.Constraint("Horizontal", 4))
sketch12.addConstraint(Sketcher.Constraint("Vertical", 5))
sketch12.addConstraint(Sketcher.Constraint("Horizontal", 6))
sketch12.addConstraint(Sketcher.Constraint("Vertical", 7))
sketch12.addConstraint(Sketcher.Constraint("Symmetric", 0, 2, 4, 2, -1, 1))
sketch12.addConstraint(Sketcher.Constraint("Symmetric", 2, 2, 6, 2, -1, 1))
sketch12.addConstraint(Sketcher.Constraint("Vertical", 3, 2, 4, 2))
sketch12.addConstraint(Sketcher.Constraint("DistanceY", 1, 2, 1, 1, 3.4))
sketch12.addConstraint(Sketcher.Constraint("DistanceX", 0, 1, 0, 2, 50.6))
sketch12.addConstraint(Sketcher.Constraint("DistanceY", -1, 1, 0, 2, 25.3))
pad5 = body.newObject("PartDesign::Pad", "Pad004")
pad5.Profile = sketch12
pad5.Length = 1.6
pad5.Reversed = True

doc.recompute()
